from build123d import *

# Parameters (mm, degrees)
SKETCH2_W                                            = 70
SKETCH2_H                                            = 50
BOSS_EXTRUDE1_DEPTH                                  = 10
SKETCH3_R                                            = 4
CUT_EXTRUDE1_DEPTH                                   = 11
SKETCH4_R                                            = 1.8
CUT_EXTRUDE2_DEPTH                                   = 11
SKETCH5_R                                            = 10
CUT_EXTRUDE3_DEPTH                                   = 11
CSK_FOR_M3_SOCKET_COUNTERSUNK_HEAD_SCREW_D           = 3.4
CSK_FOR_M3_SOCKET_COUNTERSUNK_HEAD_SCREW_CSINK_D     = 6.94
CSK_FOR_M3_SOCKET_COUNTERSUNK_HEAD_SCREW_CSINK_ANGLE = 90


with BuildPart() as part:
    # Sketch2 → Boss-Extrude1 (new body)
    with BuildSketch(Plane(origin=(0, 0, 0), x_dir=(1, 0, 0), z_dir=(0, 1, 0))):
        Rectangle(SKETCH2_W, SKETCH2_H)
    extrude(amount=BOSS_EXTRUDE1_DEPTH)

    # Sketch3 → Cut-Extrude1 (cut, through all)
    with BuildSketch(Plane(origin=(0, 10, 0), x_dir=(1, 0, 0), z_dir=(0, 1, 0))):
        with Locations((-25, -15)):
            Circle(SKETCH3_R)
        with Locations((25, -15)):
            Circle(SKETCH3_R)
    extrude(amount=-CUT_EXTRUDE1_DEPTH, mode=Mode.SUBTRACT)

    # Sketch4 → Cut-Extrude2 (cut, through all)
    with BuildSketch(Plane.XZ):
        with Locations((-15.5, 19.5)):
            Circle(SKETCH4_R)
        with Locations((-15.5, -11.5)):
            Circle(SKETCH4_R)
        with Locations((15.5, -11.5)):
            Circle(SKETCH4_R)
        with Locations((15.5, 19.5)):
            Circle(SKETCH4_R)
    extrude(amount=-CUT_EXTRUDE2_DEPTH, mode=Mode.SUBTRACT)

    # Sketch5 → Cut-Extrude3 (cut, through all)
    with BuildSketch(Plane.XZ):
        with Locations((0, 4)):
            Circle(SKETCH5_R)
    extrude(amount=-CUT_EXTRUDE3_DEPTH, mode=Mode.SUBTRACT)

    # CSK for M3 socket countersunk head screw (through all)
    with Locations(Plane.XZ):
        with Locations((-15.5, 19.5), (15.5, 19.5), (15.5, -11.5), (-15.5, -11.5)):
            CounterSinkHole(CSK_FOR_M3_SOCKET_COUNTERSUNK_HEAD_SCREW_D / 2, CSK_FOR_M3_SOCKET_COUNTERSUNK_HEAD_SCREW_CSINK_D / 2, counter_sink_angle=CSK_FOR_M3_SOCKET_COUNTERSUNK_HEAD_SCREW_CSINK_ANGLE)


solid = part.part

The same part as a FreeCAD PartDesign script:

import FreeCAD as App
import Part
import Sketcher


def add_polygon(sketch, points):
    """Adds a closed chain of lines whose ends are joined by coincident constraints."""
    first, n = sketch.GeometryCount, len(points)
    for a, b in zip(points, points[1:] + points[:1]):
        sketch.addGeometry(Part.LineSegment(App.Vector(*a, 0), App.Vector(*b, 0)), False)
    for i in range(n):
        sketch.addConstraint(Sketcher.Constraint("Coincident", first + i, 2, first + (i + 1) % n, 1))

doc = App.newDocument("Part")
body = doc.addObject("PartDesign::Body", "Body")

sketch1 = doc.addObject("Sketcher::SketchObject", "Sketch")
body.addObject(sketch1)
sketch1.AttachmentSupport = (doc.XZ_Plane, [""])
sketch1.MapMode = "FlatFace"
add_polygon(sketch1, [(-35, -25), (-35, 25), (35, 25), (35, -25)])
sketch1.addConstraint(Sketcher.Constraint("Vertical", 0))
sketch1.addConstraint(Sketcher.Constraint("Horizontal", 1))
sketch1.addConstraint(Sketcher.Constraint("Vertical", 2))
sketch1.addConstraint(Sketcher.Constraint("Horizontal", 3))
sketch1.addConstraint(Sketcher.Constraint("Symmetric", 0, 2, 2, 2, -1, 1))
sketch1.addConstraint(Sketcher.Constraint("DistanceX", 1, 1, 1, 2, 70.0))
sketch1.addConstraint(Sketcher.Constraint("DistanceY", 0, 1, 0, 2, 50.0))
pad1 = doc.addObject("PartDesign::Pad", "Pad")
body.addObject(pad1)
pad1.Profile = sketch1
pad1.Length = 10
pad1.Reversed = True

sketch2 = doc.addObject("Sketcher::SketchObject", "Sketch001")
body.addObject(sketch2)
sketch2.AttachmentSupport = (doc.XZ_Plane, [""])
sketch2.MapMode = "FlatFace"
sketch2.AttachmentOffset = App.Placement(App.Vector(0, 0, -10), App.Rotation())
sketch2.addGeometry(Part.Circle(App.Vector(-25, 15, 0), App.Vector(0, 0, 1), 4), False)
sketch2.addGeometry(Part.Circle(App.Vector(25, 15, 0), App.Vector(0, 0, 1), 4), False)
sketch2.addConstraint(Sketcher.Constraint("Equal", 0, 1))
sketch2.addConstraint(Sketcher.Constraint("Symmetric", 0, 3, 1, 3, -2))
sketch2.addConstraint(Sketcher.Constraint("Diameter", 0, 8.0))
sketch2.addConstraint(Sketcher.Constraint("DistanceX", 0, 3, -1, 1, 25.0))
sketch2.addConstraint(Sketcher.Constraint("DistanceY", -1, 1, 0, 3, 15.0))
pocket1 = doc.addObject("PartDesign::Pocket", "Pocket")
body.addObject(pocket1)
pocket1.Profile = sketch2
pocket1.Type = "ThroughAll"
pocket1.Reversed = True

sketch3 = doc.addObject("Sketcher::SketchObject", "Sketch002")
body.addObject(sketch3)
sketch3.AttachmentSupport = (doc.XZ_Plane, [""])
sketch3.MapMode = "FlatFace"
sketch3.addGeometry(Part.Circle(App.Vector(-15.5, 19.5, 0), App.Vector(0, 0, 1), 1.8), False)
sketch3.addGeometry(Part.Circle(App.Vector(-15.5, -11.5, 0), App.Vector(0, 0, 1), 1.8), False)
sketch3.addGeometry(Part.Circle(App.Vector(15.5, -11.5, 0), App.Vector(0, 0, 1), 1.8), False)
sketch3.addGeometry(Part.Circle(App.Vector(15.5, 19.5, 0), App.Vector(0, 0, 1), 1.8), False)
sketch3.addConstraint(Sketcher.Constraint("Equal", 0, 1))
sketch3.addConstraint(Sketcher.Constraint("Equal", 1, 2))
sketch3.addConstraint(Sketcher.Constraint("Equal", 2, 3))
sketch3.addConstraint(Sketcher.Constraint("Symmetric", 1, 3, 2, 3, -2))
sketch3.addConstraint(Sketcher.Constraint("Symmetric", 0, 3, 3, 3, -2))
sketch3.addConstraint(Sketcher.Constraint("Vertical", 0, 3, 1, 3))
sketch3.addConstraint(Sketcher.Constraint("Diameter", 0, 3.6))
sketch3.addConstraint(Sketcher.Constraint("DistanceY", 1, 3, 0, 3, 31.0))
sketch3.addConstraint(Sketcher.Constraint("DistanceX", 1, 3, 2, 3, 31.0))
sketch3.addConstraint(Sketcher.Constraint("DistanceY", -1, 1, 0, 3, 19.5))
pocket2 = doc.addObject("PartDesign::Pocket", "Pocket001")
body.addObject(pocket2)
pocket2.Profile = sketch3
pocket2.Type = "ThroughAll"

sketch4 = doc.addObject("Sketcher::SketchObject", "Sketch003")
body.addObject(sketch4)
sketch4.AttachmentSupport = (doc.XZ_Plane, [""])
sketch4.MapMode = "FlatFace"
sketch4.addGeometry(Part.Circle(App.Vector(0, 4, 0), App.Vector(0, 0, 1), 10), False)
sketch4.addConstraint(Sketcher.Constraint("PointOnObject", 0, 3, -2))
sketch4.addConstraint(Sketcher.Constraint("Diameter", 0, 20.0))
sketch4.addConstraint(Sketcher.Constraint("DistanceY", -1, 1, 0, 3, 4.0))
pocket3 = doc.addObject("PartDesign::Pocket", "Pocket002")
body.addObject(pocket3)
pocket3.Profile = sketch4
pocket3.Type = "ThroughAll"

sketch5 = doc.addObject("Sketcher::SketchObject", "Sketch004")
body.addObject(sketch5)
sketch5.AttachmentSupport = (doc.XZ_Plane, [""])
sketch5.MapMode = "FlatFace"
sketch5.addGeometry(Part.Circle(App.Vector(-15.5, 19.5, 0), App.Vector(0, 0, 1), 1.7), False)
sketch5.addGeometry(Part.Circle(App.Vector(15.5, 19.5, 0), App.Vector(0, 0, 1), 1.7), False)
sketch5.addGeometry(Part.Circle(App.Vector(15.5, -11.5, 0), App.Vector(0, 0, 1), 1.7), False)
sketch5.addGeometry(Part.Circle(App.Vector(-15.5, -11.5, 0), App.Vector(0, 0, 1), 1.7), False)
sketch5.addConstraint(Sketcher.Constraint("Equal", 0, 1))
sketch5.addConstraint(Sketcher.Constraint("Equal", 1, 2))
sketch5.addConstraint(Sketcher.Constraint("Equal", 2, 3))
sketch5.addConstraint(Sketcher.Constraint("Symmetric", 0, 3, 1, 3, -2))
sketch5.addConstraint(Sketcher.Constraint("Symmetric", 2, 3, 3, 3, -2))
sketch5.addConstraint(Sketcher.Constraint("Vertical", 1, 3, 2, 3))
sketch5.addConstraint(Sketcher.Constraint("Diameter", 0, 3.4))
sketch5.addConstraint(Sketcher.Constraint("DistanceX", 0, 3, 1, 3, 31.0))
sketch5.addConstraint(Sketcher.Constraint("DistanceY", 2, 3, 1, 3, 31.0))
sketch5.addConstraint(Sketcher.Constraint("DistanceY", -1, 1, 0, 3, 19.5))
doc.recompute()
hole = doc.addObject("PartDesign::Hole", "Hole")
body.addObject(hole)
hole.Profile = sketch5
hole.ThreadType = "None"
hole.Diameter = 3.4
hole.DepthType = "ThroughAll"
hole.HoleCutType = "Countersink"
hole.HoleCutDiameter = 6.94
hole.HoleCutCountersinkAngle = 90

doc.recompute()
